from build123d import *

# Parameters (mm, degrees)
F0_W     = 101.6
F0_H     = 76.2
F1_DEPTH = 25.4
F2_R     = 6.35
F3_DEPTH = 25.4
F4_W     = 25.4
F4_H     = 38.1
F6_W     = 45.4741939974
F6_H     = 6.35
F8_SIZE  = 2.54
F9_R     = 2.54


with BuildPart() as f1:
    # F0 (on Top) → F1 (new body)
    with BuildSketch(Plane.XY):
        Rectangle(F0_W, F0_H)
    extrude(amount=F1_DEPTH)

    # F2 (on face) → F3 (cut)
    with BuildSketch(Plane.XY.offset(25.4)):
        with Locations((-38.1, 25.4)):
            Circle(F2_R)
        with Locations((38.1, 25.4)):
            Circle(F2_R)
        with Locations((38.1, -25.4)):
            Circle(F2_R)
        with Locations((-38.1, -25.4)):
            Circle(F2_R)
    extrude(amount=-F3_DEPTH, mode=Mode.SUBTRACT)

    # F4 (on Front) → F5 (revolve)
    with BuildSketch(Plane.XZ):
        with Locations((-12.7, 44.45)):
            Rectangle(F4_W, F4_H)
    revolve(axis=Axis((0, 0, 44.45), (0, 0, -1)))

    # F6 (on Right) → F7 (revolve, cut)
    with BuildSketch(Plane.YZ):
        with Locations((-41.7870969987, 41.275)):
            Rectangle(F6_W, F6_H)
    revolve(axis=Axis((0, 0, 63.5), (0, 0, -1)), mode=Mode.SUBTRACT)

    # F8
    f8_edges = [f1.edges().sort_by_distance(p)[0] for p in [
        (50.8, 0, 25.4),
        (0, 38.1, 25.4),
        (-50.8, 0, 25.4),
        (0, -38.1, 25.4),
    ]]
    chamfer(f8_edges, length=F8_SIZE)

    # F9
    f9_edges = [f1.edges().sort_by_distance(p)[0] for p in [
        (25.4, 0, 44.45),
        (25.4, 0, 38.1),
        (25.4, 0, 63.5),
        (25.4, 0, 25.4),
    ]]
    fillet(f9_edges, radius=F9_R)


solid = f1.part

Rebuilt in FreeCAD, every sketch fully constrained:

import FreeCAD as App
import Part
import Sketcher
Q = App.Units.Quantity


def edges_at(feature, points):
    """Names of the edges that pass closest to the given points."""
    edges = feature.Shape.Edges
    near = lambda p: min(range(len(edges)), key=lambda i: edges[i].distToShape(Part.Vertex(*p))[0])
    return sorted({f"Edge{near(p) + 1}" for p in points})


def add_polygon(sketch, points):
    """Adds a closed chain of lines whose ends are joined by coincident constraints."""
    first, n = sketch.GeometryCount, len(points)
    for a, b in zip(points, points[1:] + points[:1]):
        sketch.addGeometry(Part.LineSegment(App.Vector(*a, 0), App.Vector(*b, 0)), False)
    for i in range(n):
        sketch.addConstraint(Sketcher.Constraint("Coincident", first + i, 2, first + (i + 1) % n, 1))

doc = App.newDocument("Part")
params = doc.addObject("Spreadsheet::Sheet", "Params")
for row, (alias, value) in enumerate([
    ("sketch1_width", "4 in"),
    ("sketch1_height", "3 in"),
    ("pad1_length", "1 in"),
    ("sketch2_diameter", "0.5 in"),
    ("pocket1_length", "1 in"),
    ("sketch3_width", "1 in"),
    ("sketch3_height", "1.5 in"),
    ("revolution_angle", "360 deg"),
    ("sketch4_height", "0.25 in"),
    ("groove_angle", "360 deg"),
    ("chamfer_size", "0.1 in"),
    ("fillet_radius", "0.1 in"),
], start=1):
    params.set(f"A{row}", alias)
    params.set(f"B{row}", "=" + value)
    params.setAlias(f"B{row}", alias)

body = doc.addObject("PartDesign::Body", "Body")

# Sketch on XY plane
sketch1 = body.newObject("Sketcher::SketchObject", "Sketch")
sketch1.AttachmentSupport = (doc.getObject("XY_Plane"), [""])
sketch1.MapMode = "FlatFace"
add_polygon(sketch1, [(-50.8, 38.1), (-50.8, -38.1), (50.8, -38.1), (50.8, 38.1)])  # lines 0-3
sketch1.addConstraint(Sketcher.Constraint("Vertical", 0))
sketch1.addConstraint(Sketcher.Constraint("Horizontal", 1))
sketch1.addConstraint(Sketcher.Constraint("Vertical", 2))
sketch1.addConstraint(Sketcher.Constraint("Horizontal", 3))
sketch1.addConstraint(Sketcher.Constraint("Symmetric", 0, 2, 2, 2, -1, 1))
sketch1.addConstraint(Sketcher.Constraint("DistanceX", 1, 1, 1, 2, Q("4 in")))
sketch1.addConstraint(Sketcher.Constraint("DistanceY", 0, 2, 0, 1, Q("3 in")))
sketch1.setExpression("Constraints[9]", "Params.sketch1_width")
sketch1.setExpression("Constraints[10]", "Params.sketch1_height")
pad1 = body.newObject("PartDesign::Pad", "Pad")
pad1.Profile = sketch1
pad1.setExpression("Length", "Params.pad1_length")

# Sketch on XY plane
sketch2 = body.newObject("Sketcher::SketchObject", "Sketch001")
sketch2.AttachmentSupport = (doc.getObject("XY_Plane"), [""])
sketch2.MapMode = "FlatFace"
sketch2.AttachmentOffset = App.Placement(App.Vector(0, 0, 1 * 25.4), App.Rotation())
sketch2.addGeometry(Part.Circle(App.Vector(-38.1, 25.4, 0), App.Vector(0, 0, 1), 6.35), False)
sketch2.addGeometry(Part.Circle(App.Vector(38.1, 25.4, 0), App.Vector(0, 0, 1), 6.35), False)
sketch2.addGeometry(Part.Circle(App.Vector(38.1, -25.4, 0), App.Vector(0, 0, 1), 6.35), False)
sketch2.addGeometry(Part.Circle(App.Vector(-38.1, -25.4, 0), App.Vector(0, 0, 1), 6.35), False)
sketch2.addConstraint(Sketcher.Constraint("Equal", 0, 1))
sketch2.addConstraint(Sketcher.Constraint("Equal", 1, 2))
sketch2.addConstraint(Sketcher.Constraint("Equal", 2, 3))
sketch2.addConstraint(Sketcher.Constraint("Symmetric", 0, 3, 2, 3, -1, 1))
sketch2.addConstraint(Sketcher.Constraint("Symmetric", 1, 3, 3, 3, -1, 1))
sketch2.addConstraint(Sketcher.Constraint("Symmetric", 0, 3, 1, 3, -2))
sketch2.addConstraint(Sketcher.Constraint("Diameter", 0, Q("0.5 in")))
sketch2.addConstraint(Sketcher.Constraint("DistanceY", -1, 1, 0, 3, Q("1 in")))
sketch2.addConstraint(Sketcher.Constraint("DistanceX", 0, 3, 1, 3, Q("3 in")))
sketch2.setExpression("Constraints[6]", "Params.sketch2_diameter")
pocket1 = body.newObject("PartDesign::Pocket", "Pocket")
pocket1.Profile = sketch2
pocket1.setExpression("Length", "Params.pocket1_length")

# Sketch on XZ plane
sketch3 = body.newObject("Sketcher::SketchObject", "Sketch002")
sketch3.AttachmentSupport = (doc.getObject("XZ_Plane"), [""])
sketch3.MapMode = "FlatFace"
add_polygon(sketch3, [(-25.4, 63.5), (-25.4, 25.4), (0, 25.4), (0, 63.5)])  # lines 0-3
sketch3.addConstraint(Sketcher.Constraint("Vertical", 0))
sketch3.addConstraint(Sketcher.Constraint("Horizontal", 1))
sketch3.addConstraint(Sketcher.Constraint("Vertical", 2))
sketch3.addConstraint(Sketcher.Constraint("Horizontal", 3))
sketch3.addConstraint(Sketcher.Constraint("PointOnObject", 1, 2, -2))
sketch3.addConstraint(Sketcher.Constraint("DistanceX", 1, 1, 1, 2, Q("1 in")))
sketch3.addConstraint(Sketcher.Constraint("DistanceY", 0, 2, 0, 1, Q("1.5 in")))
sketch3.addConstraint(Sketcher.Constraint("DistanceY", -1, 1, 0, 2, Q("1 in")))
sketch3.setExpression("Constraints[9]", "Params.sketch3_width")
sketch3.setExpression("Constraints[10]", "Params.sketch3_height")
revolution = body.newObject("PartDesign::Revolution", "Revolution")
revolution.Profile = sketch3
revolution.ReferenceAxis = (sketch3, ["V_Axis"])
revolution.setExpression("Angle", "Params.revolution_angle")

# Sketch on YZ plane
sketch4 = body.newObject("Sketcher::SketchObject", "Sketch003")
sketch4.AttachmentSupport = (doc.getObject("YZ_Plane"), [""])
sketch4.MapMode = "FlatFace"
add_polygon(sketch4, [(-64.524194, 44.45), (-64.524194, 38.1), (-19.05, 38.1), (-19.05, 44.45)])  # lines 0-3
sketch4.addConstraint(Sketcher.Constraint("Vertical", 0))
sketch4.addConstraint(Sketcher.Constraint("Horizontal", 1))
sketch4.addConstraint(Sketcher.Constraint("Vertical", 2))
sketch4.addConstraint(Sketcher.Constraint("Horizontal", 3))
sketch4.addConstraint(Sketcher.Constraint("DistanceY", 0, 2, 0, 1, Q("0.25 in")))
sketch4.addConstraint(Sketcher.Constraint("DistanceY", -1, 1, 0, 2, Q("1.5 in")))
sketch4.addConstraint(Sketcher.Constraint("DistanceX", 1, 2, -1, 1, Q("0.75 in")))
sketch4.addConstraint(Sketcher.Constraint("DistanceX", 1, 1, 1, 2, Q("45.474194 mm")))
sketch4.setExpression("Constraints[8]", "Params.sketch4_height")
groove = body.newObject("PartDesign::Groove", "Groove")
groove.Profile = sketch4
groove.ReferenceAxis = (sketch4, ["V_Axis"])
groove.setExpression("Angle", "Params.groove_angle")
doc.recompute()

chamfer = body.newObject("PartDesign::Chamfer", "Chamfer")
chamfer.Base = (groove, edges_at(groove, [
    (50.8, 0, 25.4),
    (0, 38.1, 25.4),
    (-50.8, 0, 25.4),
    (0, -38.1, 25.4),
]))
chamfer.setExpression("Size", "Params.chamfer_size")
doc.recompute()

fillet = body.newObject("PartDesign::Fillet", "Fillet")
fillet.Base = (chamfer, edges_at(chamfer, [
    (25.4, 0, 44.45),
    (25.4, 0, 38.1),
    (25.4, 0, 63.5),
    (25.4, 0, 25.4),
]))
fillet.setExpression("Radius", "Params.fillet_radius")

doc.recompute()
